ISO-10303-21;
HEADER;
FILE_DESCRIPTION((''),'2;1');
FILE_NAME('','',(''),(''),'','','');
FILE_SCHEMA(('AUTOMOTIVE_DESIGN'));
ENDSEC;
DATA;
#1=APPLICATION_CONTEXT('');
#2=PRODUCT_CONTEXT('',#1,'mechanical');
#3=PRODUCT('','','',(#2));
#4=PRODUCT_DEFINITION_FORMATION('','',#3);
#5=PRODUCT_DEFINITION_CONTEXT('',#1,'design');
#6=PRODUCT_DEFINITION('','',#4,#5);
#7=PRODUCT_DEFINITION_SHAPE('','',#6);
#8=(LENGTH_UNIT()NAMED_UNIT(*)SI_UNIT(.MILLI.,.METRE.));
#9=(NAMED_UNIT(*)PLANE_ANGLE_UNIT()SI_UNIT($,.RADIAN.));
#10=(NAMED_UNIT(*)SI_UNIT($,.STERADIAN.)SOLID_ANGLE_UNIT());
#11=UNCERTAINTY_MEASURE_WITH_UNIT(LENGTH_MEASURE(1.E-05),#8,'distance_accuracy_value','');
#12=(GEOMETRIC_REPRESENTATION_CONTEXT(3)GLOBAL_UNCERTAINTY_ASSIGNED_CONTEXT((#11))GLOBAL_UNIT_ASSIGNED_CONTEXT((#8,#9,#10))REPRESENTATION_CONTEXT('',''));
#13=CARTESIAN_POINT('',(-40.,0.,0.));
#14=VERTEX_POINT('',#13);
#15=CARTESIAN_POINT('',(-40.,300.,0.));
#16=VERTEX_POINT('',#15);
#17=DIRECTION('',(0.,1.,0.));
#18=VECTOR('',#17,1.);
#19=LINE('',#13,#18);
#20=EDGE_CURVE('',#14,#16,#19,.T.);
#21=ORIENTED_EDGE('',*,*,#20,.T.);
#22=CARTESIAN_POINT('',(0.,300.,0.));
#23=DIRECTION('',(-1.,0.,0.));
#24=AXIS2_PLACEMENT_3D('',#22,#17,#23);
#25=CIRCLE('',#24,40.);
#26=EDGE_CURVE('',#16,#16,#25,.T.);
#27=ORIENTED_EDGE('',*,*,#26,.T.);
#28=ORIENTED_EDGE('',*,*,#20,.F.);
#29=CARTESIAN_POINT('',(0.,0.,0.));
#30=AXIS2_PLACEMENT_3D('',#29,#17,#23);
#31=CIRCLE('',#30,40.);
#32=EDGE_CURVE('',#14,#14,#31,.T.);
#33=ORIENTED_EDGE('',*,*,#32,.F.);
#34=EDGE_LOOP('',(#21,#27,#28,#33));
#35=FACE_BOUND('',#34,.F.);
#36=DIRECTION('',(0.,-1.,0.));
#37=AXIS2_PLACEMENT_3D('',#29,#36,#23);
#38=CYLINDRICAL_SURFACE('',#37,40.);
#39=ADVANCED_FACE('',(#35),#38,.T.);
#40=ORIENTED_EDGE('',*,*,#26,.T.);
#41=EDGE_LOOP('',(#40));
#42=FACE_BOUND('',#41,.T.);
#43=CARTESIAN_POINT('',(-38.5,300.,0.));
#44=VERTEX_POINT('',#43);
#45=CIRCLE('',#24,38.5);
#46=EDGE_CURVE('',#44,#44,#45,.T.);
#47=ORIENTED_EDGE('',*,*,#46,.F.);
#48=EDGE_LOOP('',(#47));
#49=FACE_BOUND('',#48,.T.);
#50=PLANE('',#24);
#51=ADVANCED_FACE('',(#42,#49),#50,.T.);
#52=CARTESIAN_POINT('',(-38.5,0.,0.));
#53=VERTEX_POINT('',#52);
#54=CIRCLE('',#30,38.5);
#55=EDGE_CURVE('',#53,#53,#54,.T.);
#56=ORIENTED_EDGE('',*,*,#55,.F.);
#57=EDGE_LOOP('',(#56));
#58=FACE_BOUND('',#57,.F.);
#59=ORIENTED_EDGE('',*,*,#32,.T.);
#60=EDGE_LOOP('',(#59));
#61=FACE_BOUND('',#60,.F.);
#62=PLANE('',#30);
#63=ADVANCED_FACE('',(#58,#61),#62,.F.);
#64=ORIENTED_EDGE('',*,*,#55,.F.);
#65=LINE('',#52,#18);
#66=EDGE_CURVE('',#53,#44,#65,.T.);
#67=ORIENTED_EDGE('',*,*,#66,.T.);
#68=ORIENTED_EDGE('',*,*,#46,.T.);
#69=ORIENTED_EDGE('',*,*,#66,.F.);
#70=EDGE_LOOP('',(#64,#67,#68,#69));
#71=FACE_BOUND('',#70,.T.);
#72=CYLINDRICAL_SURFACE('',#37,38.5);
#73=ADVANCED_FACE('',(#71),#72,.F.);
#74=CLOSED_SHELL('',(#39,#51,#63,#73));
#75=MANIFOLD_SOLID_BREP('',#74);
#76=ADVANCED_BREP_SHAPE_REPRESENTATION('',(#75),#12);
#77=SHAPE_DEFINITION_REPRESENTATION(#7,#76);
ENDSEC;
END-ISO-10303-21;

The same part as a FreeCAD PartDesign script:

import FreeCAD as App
import Part
import Sketcher

doc = App.newDocument("Part")
body = doc.addObject("PartDesign::Body", "Body")

# Sketch on XZ plane
sketch1 = doc.addObject("Sketcher::SketchObject", "Sketch")
body.addObject(sketch1)
sketch1.AttachmentSupport = (doc.XZ_Plane, [""])
sketch1.MapMode = "FlatFace"
sketch1.addGeometry(Part.Circle(App.Vector(0, 0, 0), App.Vector(0, 0, 1), 40), False)
sketch1.addGeometry(Part.Circle(App.Vector(0, 0, 0), App.Vector(0, 0, 1), 38), False)
sketch1.addConstraint(Sketcher.Constraint("Coincident", 0, 3, -1, 1))
sketch1.addConstraint(Sketcher.Constraint("Coincident", 1, 3, -1, 1))
sketch1.addConstraint(Sketcher.Constraint("Diameter", 0, 80.0))
sketch1.addConstraint(Sketcher.Constraint("Diameter", 1, 77.0))
pad1 = doc.addObject("PartDesign::Pad", "Pad")
body.addObject(pad1)
pad1.Profile = sketch1
pad1.Length = 300
pad1.Reversed = True

doc.recompute()
